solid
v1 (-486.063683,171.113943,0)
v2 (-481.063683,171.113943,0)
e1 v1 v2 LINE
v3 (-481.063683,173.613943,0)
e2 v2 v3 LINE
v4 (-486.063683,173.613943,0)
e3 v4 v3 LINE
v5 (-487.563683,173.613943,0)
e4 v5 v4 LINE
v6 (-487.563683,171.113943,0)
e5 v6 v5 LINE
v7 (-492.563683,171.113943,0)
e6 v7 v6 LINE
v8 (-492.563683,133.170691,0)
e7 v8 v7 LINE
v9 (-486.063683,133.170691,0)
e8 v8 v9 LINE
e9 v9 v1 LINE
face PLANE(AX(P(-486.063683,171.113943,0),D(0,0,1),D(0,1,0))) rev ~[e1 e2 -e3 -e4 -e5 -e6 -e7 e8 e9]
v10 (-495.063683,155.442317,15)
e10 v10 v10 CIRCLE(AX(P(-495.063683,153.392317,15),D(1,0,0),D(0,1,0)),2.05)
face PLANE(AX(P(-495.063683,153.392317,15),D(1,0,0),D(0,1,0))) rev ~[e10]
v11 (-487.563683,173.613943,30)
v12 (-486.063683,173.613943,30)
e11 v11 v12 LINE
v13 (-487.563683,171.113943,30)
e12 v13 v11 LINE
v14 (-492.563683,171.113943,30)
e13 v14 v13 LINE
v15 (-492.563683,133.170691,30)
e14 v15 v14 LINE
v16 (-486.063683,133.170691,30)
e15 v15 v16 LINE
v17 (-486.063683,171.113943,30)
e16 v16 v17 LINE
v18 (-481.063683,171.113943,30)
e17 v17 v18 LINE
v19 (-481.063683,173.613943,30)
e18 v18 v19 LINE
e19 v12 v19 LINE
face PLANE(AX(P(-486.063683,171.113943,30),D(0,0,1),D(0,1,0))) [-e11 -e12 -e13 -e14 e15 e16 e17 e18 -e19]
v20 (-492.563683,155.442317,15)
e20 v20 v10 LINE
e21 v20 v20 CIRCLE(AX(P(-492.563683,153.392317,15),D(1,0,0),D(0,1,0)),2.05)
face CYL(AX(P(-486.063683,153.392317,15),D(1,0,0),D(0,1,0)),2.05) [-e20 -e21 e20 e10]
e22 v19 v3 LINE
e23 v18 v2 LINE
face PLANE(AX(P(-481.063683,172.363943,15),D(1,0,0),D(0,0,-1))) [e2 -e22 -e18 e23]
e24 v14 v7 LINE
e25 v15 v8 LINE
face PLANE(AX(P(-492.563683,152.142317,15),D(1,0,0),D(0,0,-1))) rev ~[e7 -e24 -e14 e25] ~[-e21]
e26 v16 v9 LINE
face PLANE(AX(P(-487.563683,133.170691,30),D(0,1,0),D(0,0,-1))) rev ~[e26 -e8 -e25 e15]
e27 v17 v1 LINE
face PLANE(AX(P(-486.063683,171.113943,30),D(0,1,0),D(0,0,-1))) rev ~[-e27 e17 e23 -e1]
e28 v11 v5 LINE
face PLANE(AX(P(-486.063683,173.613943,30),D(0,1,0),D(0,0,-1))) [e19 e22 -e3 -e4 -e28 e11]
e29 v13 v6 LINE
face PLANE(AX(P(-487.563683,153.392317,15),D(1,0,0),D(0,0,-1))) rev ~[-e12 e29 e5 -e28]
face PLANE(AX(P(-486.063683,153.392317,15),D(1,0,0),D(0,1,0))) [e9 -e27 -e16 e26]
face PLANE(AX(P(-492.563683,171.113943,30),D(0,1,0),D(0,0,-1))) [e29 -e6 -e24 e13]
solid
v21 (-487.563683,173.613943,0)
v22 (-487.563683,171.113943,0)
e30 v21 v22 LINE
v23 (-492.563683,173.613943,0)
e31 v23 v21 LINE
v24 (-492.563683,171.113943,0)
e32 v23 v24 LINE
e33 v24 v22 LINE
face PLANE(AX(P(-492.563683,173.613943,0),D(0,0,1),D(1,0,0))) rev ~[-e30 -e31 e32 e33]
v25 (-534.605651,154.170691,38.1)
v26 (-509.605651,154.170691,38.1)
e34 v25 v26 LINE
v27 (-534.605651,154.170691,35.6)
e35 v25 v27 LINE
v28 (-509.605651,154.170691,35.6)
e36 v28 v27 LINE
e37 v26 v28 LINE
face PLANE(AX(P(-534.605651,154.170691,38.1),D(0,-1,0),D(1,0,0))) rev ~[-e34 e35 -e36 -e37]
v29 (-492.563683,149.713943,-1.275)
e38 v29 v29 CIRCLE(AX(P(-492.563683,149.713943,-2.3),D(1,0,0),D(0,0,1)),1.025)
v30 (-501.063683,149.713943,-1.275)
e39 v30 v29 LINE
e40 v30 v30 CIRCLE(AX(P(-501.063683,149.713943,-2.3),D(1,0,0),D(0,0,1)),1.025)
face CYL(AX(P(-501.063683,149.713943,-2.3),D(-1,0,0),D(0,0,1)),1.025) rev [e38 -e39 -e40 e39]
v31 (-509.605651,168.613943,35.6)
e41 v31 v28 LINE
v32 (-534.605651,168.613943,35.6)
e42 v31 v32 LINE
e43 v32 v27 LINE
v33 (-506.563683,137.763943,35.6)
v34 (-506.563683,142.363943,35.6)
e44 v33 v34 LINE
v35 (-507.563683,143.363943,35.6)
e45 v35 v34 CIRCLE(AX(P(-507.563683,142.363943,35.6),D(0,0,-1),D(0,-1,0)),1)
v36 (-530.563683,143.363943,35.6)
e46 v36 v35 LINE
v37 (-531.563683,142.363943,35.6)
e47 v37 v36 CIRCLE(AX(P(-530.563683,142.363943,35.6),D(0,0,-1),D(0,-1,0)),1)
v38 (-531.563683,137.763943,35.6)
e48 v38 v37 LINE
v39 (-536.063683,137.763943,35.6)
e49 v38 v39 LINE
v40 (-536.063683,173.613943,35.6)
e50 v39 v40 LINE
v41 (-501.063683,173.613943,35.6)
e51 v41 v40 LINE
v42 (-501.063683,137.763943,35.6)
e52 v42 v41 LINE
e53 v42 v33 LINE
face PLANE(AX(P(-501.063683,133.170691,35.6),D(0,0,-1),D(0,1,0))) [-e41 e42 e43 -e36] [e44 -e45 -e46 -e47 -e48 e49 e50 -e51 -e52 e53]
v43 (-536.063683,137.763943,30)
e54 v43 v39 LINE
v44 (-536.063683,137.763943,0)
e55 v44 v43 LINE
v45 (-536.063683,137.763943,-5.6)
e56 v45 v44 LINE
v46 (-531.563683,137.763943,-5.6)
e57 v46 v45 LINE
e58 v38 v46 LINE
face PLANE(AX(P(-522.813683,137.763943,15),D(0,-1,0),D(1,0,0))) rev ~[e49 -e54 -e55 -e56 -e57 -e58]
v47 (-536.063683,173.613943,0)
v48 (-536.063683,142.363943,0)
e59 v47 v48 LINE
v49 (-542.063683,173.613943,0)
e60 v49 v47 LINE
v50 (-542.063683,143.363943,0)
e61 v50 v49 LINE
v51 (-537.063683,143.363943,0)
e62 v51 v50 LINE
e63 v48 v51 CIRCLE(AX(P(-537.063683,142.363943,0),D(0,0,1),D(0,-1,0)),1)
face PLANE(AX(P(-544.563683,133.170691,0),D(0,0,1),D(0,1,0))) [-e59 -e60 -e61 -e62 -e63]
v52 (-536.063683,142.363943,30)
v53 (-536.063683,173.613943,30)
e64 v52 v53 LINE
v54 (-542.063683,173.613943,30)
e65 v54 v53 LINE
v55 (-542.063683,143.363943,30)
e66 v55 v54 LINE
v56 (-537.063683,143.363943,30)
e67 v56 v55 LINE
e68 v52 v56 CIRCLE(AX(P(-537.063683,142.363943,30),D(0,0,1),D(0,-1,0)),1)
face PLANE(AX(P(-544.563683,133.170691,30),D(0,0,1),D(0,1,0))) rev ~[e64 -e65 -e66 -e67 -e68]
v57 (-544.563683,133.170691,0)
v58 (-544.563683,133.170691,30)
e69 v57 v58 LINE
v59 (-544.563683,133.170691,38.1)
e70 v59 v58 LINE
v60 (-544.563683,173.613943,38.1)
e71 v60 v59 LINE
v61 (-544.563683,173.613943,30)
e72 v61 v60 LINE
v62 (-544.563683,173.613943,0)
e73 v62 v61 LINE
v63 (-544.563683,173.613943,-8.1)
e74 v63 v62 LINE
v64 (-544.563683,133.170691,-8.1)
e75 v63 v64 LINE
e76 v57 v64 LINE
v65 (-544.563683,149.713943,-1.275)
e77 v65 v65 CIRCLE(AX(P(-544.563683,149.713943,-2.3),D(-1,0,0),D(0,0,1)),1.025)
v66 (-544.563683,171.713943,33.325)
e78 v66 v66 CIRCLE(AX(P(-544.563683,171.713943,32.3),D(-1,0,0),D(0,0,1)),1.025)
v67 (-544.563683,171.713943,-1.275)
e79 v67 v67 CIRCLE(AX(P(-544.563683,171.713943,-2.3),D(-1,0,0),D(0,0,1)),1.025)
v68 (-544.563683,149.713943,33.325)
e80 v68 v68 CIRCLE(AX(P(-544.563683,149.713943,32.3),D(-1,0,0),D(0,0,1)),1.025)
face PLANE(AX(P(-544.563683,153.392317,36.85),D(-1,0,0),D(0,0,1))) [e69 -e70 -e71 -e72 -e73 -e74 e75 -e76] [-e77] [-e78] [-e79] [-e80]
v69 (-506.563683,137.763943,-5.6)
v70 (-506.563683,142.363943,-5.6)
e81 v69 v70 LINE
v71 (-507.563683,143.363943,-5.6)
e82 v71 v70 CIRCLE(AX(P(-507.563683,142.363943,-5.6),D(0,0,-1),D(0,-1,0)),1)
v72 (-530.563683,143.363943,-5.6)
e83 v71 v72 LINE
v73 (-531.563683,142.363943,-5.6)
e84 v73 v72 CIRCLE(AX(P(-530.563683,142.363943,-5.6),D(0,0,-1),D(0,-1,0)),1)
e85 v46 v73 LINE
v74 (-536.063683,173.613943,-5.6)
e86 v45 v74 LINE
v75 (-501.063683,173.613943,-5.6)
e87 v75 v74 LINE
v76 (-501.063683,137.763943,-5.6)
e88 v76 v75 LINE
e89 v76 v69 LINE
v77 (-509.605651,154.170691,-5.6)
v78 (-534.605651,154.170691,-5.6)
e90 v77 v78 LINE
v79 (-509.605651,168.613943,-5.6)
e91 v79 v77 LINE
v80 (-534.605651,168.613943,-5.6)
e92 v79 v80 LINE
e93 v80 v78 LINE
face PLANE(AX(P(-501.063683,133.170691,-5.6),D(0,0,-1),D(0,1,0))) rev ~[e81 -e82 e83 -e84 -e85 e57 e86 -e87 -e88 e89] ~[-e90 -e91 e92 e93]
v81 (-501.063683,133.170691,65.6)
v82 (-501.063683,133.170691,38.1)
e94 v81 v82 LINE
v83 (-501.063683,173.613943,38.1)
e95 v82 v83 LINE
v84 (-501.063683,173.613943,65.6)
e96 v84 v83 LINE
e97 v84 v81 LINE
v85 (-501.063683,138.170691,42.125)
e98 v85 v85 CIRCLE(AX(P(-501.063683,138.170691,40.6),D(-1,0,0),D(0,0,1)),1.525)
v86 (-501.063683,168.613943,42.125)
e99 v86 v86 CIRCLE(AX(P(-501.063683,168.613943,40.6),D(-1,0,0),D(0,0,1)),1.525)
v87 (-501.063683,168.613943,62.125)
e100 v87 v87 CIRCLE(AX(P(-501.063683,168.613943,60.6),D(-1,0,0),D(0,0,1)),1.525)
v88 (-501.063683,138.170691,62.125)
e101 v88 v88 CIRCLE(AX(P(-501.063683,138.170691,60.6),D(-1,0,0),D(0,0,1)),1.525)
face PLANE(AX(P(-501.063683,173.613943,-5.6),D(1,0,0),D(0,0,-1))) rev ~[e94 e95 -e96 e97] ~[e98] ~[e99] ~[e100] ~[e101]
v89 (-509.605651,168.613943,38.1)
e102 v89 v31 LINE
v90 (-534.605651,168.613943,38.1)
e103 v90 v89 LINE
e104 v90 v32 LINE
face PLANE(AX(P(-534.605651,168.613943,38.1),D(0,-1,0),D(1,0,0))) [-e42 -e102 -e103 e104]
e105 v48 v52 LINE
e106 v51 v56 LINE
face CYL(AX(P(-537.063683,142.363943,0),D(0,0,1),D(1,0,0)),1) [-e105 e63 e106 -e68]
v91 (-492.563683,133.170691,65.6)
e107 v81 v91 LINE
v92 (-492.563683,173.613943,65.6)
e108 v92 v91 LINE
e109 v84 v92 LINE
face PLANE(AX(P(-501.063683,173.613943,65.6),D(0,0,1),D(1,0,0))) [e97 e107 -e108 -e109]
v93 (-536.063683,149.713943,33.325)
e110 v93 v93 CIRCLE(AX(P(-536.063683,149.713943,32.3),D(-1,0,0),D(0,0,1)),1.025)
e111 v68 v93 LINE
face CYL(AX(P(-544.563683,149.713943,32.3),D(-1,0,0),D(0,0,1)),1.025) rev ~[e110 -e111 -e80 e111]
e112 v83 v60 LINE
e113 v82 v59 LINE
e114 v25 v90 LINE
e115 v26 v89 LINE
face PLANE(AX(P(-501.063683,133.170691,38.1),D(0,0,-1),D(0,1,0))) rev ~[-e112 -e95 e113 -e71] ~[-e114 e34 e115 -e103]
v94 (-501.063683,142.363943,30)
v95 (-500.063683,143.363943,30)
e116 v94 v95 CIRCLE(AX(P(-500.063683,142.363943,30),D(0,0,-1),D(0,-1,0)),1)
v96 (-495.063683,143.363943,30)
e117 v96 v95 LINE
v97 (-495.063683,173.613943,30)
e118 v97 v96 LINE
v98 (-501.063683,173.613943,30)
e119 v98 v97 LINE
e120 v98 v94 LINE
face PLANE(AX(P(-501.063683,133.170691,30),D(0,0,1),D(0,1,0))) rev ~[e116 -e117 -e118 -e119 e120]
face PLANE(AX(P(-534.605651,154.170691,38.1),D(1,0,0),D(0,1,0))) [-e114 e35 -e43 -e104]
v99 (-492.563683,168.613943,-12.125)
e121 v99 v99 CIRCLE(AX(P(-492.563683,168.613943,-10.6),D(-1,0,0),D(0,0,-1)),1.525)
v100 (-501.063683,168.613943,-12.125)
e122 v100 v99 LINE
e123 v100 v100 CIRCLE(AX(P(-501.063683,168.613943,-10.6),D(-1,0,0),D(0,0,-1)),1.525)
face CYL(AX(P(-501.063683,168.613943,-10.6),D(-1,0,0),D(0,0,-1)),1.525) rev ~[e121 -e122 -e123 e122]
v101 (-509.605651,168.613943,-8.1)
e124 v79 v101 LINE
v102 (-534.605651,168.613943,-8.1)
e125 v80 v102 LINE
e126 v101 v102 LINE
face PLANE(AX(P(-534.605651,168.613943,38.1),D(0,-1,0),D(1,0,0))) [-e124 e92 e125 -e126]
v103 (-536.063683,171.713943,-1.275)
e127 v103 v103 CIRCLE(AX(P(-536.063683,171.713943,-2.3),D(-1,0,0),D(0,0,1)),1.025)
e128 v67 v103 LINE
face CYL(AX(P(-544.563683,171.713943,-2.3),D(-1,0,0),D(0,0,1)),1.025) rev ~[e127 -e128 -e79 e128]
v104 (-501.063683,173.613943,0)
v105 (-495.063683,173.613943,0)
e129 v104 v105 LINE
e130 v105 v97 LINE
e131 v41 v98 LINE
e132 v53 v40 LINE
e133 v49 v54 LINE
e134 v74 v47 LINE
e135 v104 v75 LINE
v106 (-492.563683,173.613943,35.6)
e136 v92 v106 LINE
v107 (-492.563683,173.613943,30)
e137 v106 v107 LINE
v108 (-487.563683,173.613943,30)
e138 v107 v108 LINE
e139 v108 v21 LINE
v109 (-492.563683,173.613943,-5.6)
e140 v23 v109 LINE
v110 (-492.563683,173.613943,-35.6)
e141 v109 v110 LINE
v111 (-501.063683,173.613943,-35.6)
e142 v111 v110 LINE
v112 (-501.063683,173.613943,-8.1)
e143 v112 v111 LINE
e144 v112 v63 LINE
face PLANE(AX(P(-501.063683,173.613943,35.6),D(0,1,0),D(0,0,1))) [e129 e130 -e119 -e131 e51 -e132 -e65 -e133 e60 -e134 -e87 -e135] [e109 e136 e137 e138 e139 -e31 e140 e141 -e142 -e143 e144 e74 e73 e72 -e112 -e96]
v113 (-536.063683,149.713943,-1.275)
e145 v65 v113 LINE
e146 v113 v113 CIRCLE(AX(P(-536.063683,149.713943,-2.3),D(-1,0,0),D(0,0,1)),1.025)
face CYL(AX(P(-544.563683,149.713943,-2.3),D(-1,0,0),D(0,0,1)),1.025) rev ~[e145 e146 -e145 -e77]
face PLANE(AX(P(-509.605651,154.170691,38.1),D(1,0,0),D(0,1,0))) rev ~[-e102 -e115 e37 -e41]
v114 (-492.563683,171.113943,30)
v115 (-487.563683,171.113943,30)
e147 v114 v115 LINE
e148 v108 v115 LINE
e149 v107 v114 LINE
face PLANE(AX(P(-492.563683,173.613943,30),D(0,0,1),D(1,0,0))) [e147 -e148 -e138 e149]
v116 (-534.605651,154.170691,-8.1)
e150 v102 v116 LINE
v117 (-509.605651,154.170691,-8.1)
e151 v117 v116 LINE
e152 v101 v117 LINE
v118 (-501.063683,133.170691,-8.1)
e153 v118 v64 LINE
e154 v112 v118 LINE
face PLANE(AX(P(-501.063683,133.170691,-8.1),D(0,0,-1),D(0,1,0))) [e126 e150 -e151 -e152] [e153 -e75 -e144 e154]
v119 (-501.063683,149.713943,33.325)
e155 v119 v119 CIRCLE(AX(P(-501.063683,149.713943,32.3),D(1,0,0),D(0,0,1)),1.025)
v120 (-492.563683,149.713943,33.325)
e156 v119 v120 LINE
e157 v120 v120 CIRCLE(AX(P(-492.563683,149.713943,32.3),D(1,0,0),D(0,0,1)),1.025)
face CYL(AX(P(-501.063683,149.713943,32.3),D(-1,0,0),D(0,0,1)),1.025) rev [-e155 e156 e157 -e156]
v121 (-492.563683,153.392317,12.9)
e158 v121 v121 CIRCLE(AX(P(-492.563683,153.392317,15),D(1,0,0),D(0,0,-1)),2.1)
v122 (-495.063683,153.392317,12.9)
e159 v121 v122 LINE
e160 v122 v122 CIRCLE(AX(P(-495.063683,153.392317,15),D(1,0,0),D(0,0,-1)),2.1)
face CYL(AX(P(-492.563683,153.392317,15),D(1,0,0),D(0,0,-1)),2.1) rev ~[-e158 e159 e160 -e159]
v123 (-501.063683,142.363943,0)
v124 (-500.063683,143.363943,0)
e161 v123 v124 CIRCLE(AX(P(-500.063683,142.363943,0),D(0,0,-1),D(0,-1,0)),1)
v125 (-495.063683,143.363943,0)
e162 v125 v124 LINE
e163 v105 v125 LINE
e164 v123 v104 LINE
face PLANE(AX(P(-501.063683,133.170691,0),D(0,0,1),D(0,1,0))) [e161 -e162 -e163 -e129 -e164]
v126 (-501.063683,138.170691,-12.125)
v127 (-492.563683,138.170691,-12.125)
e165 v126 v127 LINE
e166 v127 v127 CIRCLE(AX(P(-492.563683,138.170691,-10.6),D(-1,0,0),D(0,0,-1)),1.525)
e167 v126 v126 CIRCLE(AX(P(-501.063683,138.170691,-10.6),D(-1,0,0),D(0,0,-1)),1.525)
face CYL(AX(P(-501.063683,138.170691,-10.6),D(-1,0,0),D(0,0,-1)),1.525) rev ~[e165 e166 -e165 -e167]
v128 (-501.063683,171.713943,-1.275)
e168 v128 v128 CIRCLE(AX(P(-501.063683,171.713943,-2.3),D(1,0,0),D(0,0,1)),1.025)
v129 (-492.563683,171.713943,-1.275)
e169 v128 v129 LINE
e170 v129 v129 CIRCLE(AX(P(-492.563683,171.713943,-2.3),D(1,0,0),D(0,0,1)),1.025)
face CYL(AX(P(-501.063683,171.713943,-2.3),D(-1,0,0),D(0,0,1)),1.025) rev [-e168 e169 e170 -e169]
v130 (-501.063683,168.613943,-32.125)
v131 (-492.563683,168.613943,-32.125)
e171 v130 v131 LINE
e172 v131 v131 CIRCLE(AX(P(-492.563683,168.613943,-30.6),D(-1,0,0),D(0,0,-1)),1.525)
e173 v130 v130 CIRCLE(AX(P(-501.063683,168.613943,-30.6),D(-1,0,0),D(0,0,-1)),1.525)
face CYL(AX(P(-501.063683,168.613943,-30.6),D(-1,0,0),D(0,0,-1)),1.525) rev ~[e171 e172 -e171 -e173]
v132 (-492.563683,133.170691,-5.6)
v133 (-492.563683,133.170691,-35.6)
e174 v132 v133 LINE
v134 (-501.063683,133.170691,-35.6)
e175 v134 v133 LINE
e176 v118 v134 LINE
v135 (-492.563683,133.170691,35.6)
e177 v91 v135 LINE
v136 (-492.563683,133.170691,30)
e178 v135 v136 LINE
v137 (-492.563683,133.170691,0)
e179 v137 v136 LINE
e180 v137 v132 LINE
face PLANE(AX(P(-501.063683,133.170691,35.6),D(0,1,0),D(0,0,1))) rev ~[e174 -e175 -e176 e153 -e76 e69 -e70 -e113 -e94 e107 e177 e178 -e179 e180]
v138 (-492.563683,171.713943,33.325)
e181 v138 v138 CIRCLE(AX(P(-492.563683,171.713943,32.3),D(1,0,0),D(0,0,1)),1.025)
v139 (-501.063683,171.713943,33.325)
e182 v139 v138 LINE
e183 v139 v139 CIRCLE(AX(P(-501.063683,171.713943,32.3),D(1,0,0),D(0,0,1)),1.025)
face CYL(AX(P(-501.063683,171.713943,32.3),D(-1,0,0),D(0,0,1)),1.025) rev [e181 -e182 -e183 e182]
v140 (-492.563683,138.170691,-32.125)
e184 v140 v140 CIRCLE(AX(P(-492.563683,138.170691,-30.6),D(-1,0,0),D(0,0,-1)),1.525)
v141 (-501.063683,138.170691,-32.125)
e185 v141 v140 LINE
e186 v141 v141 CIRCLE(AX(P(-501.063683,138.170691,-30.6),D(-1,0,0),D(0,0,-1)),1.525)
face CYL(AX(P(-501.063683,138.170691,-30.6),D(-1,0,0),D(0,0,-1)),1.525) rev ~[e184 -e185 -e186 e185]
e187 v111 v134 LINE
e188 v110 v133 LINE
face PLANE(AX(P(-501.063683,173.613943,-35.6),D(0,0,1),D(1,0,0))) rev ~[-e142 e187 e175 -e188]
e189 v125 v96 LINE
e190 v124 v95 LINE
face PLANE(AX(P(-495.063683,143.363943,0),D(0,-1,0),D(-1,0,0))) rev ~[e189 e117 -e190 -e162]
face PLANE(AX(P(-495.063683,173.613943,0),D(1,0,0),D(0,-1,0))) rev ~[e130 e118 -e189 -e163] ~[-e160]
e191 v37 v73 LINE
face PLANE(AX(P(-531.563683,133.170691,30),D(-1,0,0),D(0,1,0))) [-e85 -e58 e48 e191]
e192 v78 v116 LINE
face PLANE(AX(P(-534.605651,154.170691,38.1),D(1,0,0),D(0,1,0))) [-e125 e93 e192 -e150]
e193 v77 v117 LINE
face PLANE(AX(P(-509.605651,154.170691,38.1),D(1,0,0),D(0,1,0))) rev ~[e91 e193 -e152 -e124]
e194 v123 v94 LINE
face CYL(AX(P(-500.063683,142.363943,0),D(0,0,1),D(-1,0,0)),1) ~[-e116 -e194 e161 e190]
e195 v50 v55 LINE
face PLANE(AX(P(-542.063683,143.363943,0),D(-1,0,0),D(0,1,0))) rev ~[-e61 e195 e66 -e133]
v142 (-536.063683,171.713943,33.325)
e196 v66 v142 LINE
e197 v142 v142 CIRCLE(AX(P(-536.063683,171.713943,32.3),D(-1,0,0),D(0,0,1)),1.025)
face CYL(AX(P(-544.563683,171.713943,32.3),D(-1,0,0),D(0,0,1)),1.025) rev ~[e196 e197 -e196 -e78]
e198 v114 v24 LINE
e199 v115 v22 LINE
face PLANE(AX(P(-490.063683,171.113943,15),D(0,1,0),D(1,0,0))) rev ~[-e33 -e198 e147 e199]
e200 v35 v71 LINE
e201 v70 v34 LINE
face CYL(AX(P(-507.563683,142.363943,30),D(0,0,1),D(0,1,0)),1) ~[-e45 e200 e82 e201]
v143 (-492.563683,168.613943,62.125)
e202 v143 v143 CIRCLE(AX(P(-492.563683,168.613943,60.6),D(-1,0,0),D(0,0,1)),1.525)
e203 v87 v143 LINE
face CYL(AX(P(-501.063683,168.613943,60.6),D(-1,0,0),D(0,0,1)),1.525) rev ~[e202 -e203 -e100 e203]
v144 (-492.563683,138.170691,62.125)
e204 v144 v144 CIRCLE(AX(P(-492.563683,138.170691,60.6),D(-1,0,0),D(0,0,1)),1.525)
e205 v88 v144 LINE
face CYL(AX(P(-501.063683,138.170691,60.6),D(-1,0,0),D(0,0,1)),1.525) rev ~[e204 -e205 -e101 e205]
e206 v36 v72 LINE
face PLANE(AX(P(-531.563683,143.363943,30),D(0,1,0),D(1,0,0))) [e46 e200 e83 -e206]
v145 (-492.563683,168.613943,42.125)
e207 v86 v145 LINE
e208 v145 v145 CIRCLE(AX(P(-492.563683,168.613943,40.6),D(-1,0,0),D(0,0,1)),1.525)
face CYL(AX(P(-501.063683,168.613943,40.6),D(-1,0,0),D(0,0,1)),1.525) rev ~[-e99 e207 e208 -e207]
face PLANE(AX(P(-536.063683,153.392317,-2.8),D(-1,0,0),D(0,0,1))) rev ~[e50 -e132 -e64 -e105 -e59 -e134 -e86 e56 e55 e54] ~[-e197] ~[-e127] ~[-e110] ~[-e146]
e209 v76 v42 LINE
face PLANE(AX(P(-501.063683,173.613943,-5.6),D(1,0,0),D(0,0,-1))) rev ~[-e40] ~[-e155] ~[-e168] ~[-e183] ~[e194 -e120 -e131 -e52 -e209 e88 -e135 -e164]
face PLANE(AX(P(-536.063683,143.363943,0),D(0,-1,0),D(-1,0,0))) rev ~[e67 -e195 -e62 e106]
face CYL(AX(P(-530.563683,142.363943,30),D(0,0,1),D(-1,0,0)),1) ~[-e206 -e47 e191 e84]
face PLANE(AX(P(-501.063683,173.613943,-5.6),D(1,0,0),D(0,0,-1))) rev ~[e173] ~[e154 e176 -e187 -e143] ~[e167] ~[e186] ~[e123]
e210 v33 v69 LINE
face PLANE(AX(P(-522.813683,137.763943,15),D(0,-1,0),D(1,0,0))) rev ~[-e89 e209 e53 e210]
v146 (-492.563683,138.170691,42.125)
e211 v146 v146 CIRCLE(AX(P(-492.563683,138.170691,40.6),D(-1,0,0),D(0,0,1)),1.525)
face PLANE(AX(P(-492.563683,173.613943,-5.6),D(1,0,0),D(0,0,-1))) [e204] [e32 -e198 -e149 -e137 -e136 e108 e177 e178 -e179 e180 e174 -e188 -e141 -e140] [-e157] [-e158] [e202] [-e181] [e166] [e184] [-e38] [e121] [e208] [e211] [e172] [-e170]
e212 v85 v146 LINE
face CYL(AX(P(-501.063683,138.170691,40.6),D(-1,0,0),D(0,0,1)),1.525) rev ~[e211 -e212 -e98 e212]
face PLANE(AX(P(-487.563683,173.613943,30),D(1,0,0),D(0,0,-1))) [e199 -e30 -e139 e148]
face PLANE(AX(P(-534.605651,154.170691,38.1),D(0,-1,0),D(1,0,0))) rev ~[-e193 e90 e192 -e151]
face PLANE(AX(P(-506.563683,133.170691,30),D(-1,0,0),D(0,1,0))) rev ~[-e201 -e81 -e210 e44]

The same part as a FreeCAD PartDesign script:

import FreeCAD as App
import Part
import Sketcher


def edges_at(feature, points):
    """Names of the edges that pass closest to the given points."""
    edges = feature.Shape.Edges
    near = lambda p: min(range(len(edges)), key=lambda i: edges[i].distToShape(Part.Vertex(*p))[0])
    return sorted({f"Edge{near(p) + 1}" for p in points})


def add_polygon(sketch, points):
    """Adds a closed chain of lines whose ends are joined by coincident constraints."""
    first, n = sketch.GeometryCount, len(points)
    for a, b in zip(points, points[1:] + points[:1]):
        sketch.addGeometry(Part.LineSegment(App.Vector(*a, 0), App.Vector(*b, 0)), False)
    for i in range(n):
        sketch.addConstraint(Sketcher.Constraint("Coincident", first + i, 2, first + (i + 1) % n, 1))

doc = App.newDocument("Part")
body = doc.addObject("PartDesign::Body", "Body")

# Sketch on XY plane
sketch1 = body.newObject("Sketcher::SketchObject", "Sketch")
sketch1.AttachmentSupport = (doc.getObject("XY_Plane"), [""])
sketch1.MapMode = "FlatFace"
add_polygon(sketch1, [(-492.6, 133.2), (-492.6, 173.6), (-495.1, 173.6), (-495.1, 143.4), (-501.1, 143.4), (-501.1, 137.8), (-506.6, 137.8), (-506.6, 143.4), (-531.6, 143.4), (-531.6, 137.8), (-536.1, 137.8), (-536.1, 143.4), (-542.1, 143.4), (-542.1, 173.6), (-544.6, 173.6), (-544.6, 133.2)])  # lines 0-15
sketch1.addConstraint(Sketcher.Constraint("Vertical", 0))
sketch1.addConstraint(Sketcher.Constraint("Horizontal", 1))
sketch1.addConstraint(Sketcher.Constraint("Vertical", 2))
sketch1.addConstraint(Sketcher.Constraint("Horizontal", 3))
sketch1.addConstraint(Sketcher.Constraint("Vertical", 4))
sketch1.addConstraint(Sketcher.Constraint("Horizontal", 5))
sketch1.addConstraint(Sketcher.Constraint("Vertical", 6))
sketch1.addConstraint(Sketcher.Constraint("Horizontal", 7))
sketch1.addConstraint(Sketcher.Constraint("Vertical", 8))
sketch1.addConstraint(Sketcher.Constraint("Horizontal", 9))
sketch1.addConstraint(Sketcher.Constraint("Vertical", 10))
sketch1.addConstraint(Sketcher.Constraint("Horizontal", 11))
sketch1.addConstraint(Sketcher.Constraint("Vertical", 12))
sketch1.addConstraint(Sketcher.Constraint("Horizontal", 13))
sketch1.addConstraint(Sketcher.Constraint("Vertical", 14))
sketch1.addConstraint(Sketcher.Constraint("Horizontal", 15))
sketch1.addConstraint(Sketcher.Constraint("Horizontal", 3, 2, 6, 2))
sketch1.addConstraint(Sketcher.Constraint("Horizontal", 5, 2, 8, 2))
sketch1.addConstraint(Sketcher.Constraint("Horizontal", 7, 2, 10, 2))
sketch1.addConstraint(Sketcher.Constraint("Horizontal", 1, 2, 12, 2))
sketch1.addConstraint(Sketcher.Constraint("Equal", 3, 11))
sketch1.addConstraint(Sketcher.Constraint("Equal", 1, 13))
sketch1.addConstraint(Sketcher.Constraint("DistanceX", 3, 2, 3, 1, 6.0))
sketch1.addConstraint(Sketcher.Constraint("DistanceX", 7, 2, 7, 1, 25.0))
sketch1.addConstraint(Sketcher.Constraint("DistanceX", 15, 1, 15, 2, 52.0))
sketch1.addConstraint(Sketcher.Constraint("DistanceX", 1, 2, 1, 1, 2.5))
sketch1.addConstraint(Sketcher.Constraint("DistanceX", 5, 2, 5, 1, 5.5))
sketch1.addConstraint(Sketcher.Constraint("DistanceY", 4, 2, 4, 1, 5.6))
sketch1.addConstraint(Sketcher.Constraint("DistanceY", 2, 2, 2, 1, 30.25))
sketch1.addConstraint(Sketcher.Constraint("DistanceY", 0, 1, 0, 2, 40.443252))
sketch1.addConstraint(Sketcher.Constraint("DistanceY", -1, 1, 14, 2, 133.170691))
sketch1.addConstraint(Sketcher.Constraint("DistanceX", 0, 2, -1, 1, 492.563683))
pad1 = body.newObject("PartDesign::Pad", "Pad")
pad1.Profile = sketch1
pad1.Length = 30

# Sketch on YZ plane
sketch2 = body.newObject("Sketcher::SketchObject", "Sketch001")
sketch2.AttachmentSupport = (doc.getObject("YZ_Plane"), [""])
sketch2.MapMode = "FlatFace"
sketch2.AttachmentOffset = App.Placement(App.Vector(0, 0, -544.563683), App.Rotation())
add_polygon(sketch2, [(173.6, -5.6), (133.2, -5.6), (133.2, 0), (173.6, 0)])  # lines 0-3
sketch2.addGeometry(Part.Circle(App.Vector(149.7, -2.3, 0), App.Vector(0, 0, 1), 1), False)  # 4
sketch2.addGeometry(Part.Circle(App.Vector(171.7, -2.3, 0), App.Vector(0, 0, 1), 1), False)  # 5
add_polygon(sketch2, [(173.6, 30), (133.2, 30), (133.2, 35.6), (173.6, 35.6)])  # lines 6-9
sketch2.addGeometry(Part.Circle(App.Vector(149.7, 32.3, 0), App.Vector(0, 0, 1), 1), False)  # 10
sketch2.addGeometry(Part.Circle(App.Vector(171.7, 32.3, 0), App.Vector(0, 0, 1), 1), False)  # 11
sketch2.addConstraint(Sketcher.Constraint("Horizontal", 0))
sketch2.addConstraint(Sketcher.Constraint("Vertical", 1))
sketch2.addConstraint(Sketcher.Constraint("Horizontal", 2))
sketch2.addConstraint(Sketcher.Constraint("Vertical", 3))
sketch2.addConstraint(Sketcher.Constraint("Horizontal", 6))
sketch2.addConstraint(Sketcher.Constraint("Vertical", 7))
sketch2.addConstraint(Sketcher.Constraint("Horizontal", 8))
sketch2.addConstraint(Sketcher.Constraint("Vertical", 9))
sketch2.addConstraint(Sketcher.Constraint("Equal", 4, 5))
sketch2.addConstraint(Sketcher.Constraint("Equal", 5, 10))
sketch2.addConstraint(Sketcher.Constraint("Equal", 10, 11))
sketch2.addConstraint(Sketcher.Constraint("PointOnObject", 1, 2, -1))
sketch2.addConstraint(Sketcher.Constraint("Horizontal", 4, 3, 5, 3))
sketch2.addConstraint(Sketcher.Constraint("Horizontal", 10, 3, 11, 3))
sketch2.addConstraint(Sketcher.Constraint("Vertical", 4, 3, 10, 3))
sketch2.addConstraint(Sketcher.Constraint("Vertical", 5, 3, 11, 3))
sketch2.addConstraint(Sketcher.Constraint("Vertical", 1, 2, 6, 2))
sketch2.addConstraint(Sketcher.Constraint("Vertical", 3, 2, 8, 2))
sketch2.addConstraint(Sketcher.Constraint("Equal", 3, 7))
sketch2.addConstraint(Sketcher.Constraint("Diameter", 4, 2.05))
sketch2.addConstraint(Sketcher.Constraint("DistanceY", 1, 1, 1, 2, 5.6))
sketch2.addConstraint(Sketcher.Constraint("DistanceY", -1, 1, 6, 2, 30.0))
sketch2.addConstraint(Sketcher.Constraint("DistanceX", 4, 3, 5, 3, 22.0))
sketch2.addConstraint(Sketcher.Constraint("DistanceY", 4, 3, -1, 1, 2.3))
sketch2.addConstraint(Sketcher.Constraint("DistanceY", -1, 1, 10, 3, 32.3))
sketch2.addConstraint(Sketcher.Constraint("DistanceX", 5, 3, 2, 2, 1.9))
sketch2.addConstraint(Sketcher.Constraint("DistanceX", 0, 2, 0, 1, 40.443252))
sketch2.addConstraint(Sketcher.Constraint("DistanceX", -1, 1, 0, 2, 133.170691))
pad2 = body.newObject("PartDesign::Pad", "Pad001")
pad2.Profile = sketch2
pad2.Length = 8.5

# Sketch on XY plane
sketch3 = body.newObject("Sketcher::SketchObject", "Sketch002")
sketch3.AttachmentSupport = (doc.getObject("XY_Plane"), [""])
sketch3.MapMode = "FlatFace"
add_polygon(sketch3, [(-507, 143), (-507, 133), (-532, 133), (-532, 143)])  # lines 0-3
sketch3.addConstraint(Sketcher.Constraint("Vertical", 0))
sketch3.addConstraint(Sketcher.Constraint("Horizontal", 1))
sketch3.addConstraint(Sketcher.Constraint("Vertical", 2))
sketch3.addConstraint(Sketcher.Constraint("Horizontal", 3))
sketch3.addConstraint(Sketcher.Constraint("DistanceX", 1, 2, 1, 1, 25.0))
sketch3.addConstraint(Sketcher.Constraint("DistanceY", 0, 2, 0, 1, 10.193252))
sketch3.addConstraint(Sketcher.Constraint("DistanceY", -1, 1, 0, 2, 133.170691))
sketch3.addConstraint(Sketcher.Constraint("DistanceX", 0, 2, -1, 1, 506.563683))
pad3 = body.newObject("PartDesign::Pad", "Pad002")
pad3.Profile = sketch3
pad3.Length = 5.6
pad3.Reversed = True

# Sketch on XY plane
sketch4 = body.newObject("Sketcher::SketchObject", "Sketch003")
sketch4.AttachmentSupport = (doc.getObject("XY_Plane"), [""])
sketch4.MapMode = "FlatFace"
sketch4.AttachmentOffset = App.Placement(App.Vector(0, 0, 30), App.Rotation())
add_polygon(sketch4, [(-532, 143), (-532, 133), (-507, 133), (-507, 143)])  # lines 0-3
sketch4.addConstraint(Sketcher.Constraint("Vertical", 0))
sketch4.addConstraint(Sketcher.Constraint("Horizontal", 1))
sketch4.addConstraint(Sketcher.Constraint("Vertical", 2))
sketch4.addConstraint(Sketcher.Constraint("Horizontal", 3))
sketch4.addConstraint(Sketcher.Constraint("DistanceX", 1, 1, 1, 2, 25.0))
sketch4.addConstraint(Sketcher.Constraint("DistanceY", 0, 2, 0, 1, 10.193252))
sketch4.addConstraint(Sketcher.Constraint("DistanceY", -1, 1, 0, 2, 133.170691))
sketch4.addConstraint(Sketcher.Constraint("DistanceX", 0, 2, -1, 1, 531.563683))
pad4 = body.newObject("PartDesign::Pad", "Pad003")
pad4.Profile = sketch4
pad4.Length = 5.6
doc.recompute()

fillet = body.newObject("PartDesign::Fillet", "Fillet")
fillet.Base = (pad4, edges_at(pad4, [(-531.564, 143.364, 15), (-506.564, 143.364, 15)]))
fillet.Radius = 1

# Sketch on YZ plane
sketch5 = body.newObject("Sketcher::SketchObject", "Sketch004")
sketch5.AttachmentSupport = (doc.getObject("YZ_Plane"), [""])
sketch5.MapMode = "FlatFace"
sketch5.AttachmentOffset = App.Placement(App.Vector(0, 0, -501.063683), App.Rotation())
add_polygon(sketch5, [(173.6, 35.6), (133.2, 35.6), (133.2, 30), (173.6, 30)])  # lines 0-3
sketch5.addGeometry(Part.Circle(App.Vector(149.7, 32.3, 0), App.Vector(0, 0, 1), 1), False)  # 4
sketch5.addGeometry(Part.Circle(App.Vector(171.7, 32.3, 0), App.Vector(0, 0, 1), 1), False)  # 5
add_polygon(sketch5, [(173.6, 0), (133.2, 0), (133.2, -5.6), (173.6, -5.6)])  # lines 6-9
sketch5.addGeometry(Part.Circle(App.Vector(149.7, -2.3, 0), App.Vector(0, 0, 1), 1), False)  # 10
sketch5.addGeometry(Part.Circle(App.Vector(171.7, -2.3, 0), App.Vector(0, 0, 1), 1), False)  # 11
sketch5.addConstraint(Sketcher.Constraint("Horizontal", 0))
sketch5.addConstraint(Sketcher.Constraint("Vertical", 1))
sketch5.addConstraint(Sketcher.Constraint("Horizontal", 2))
sketch5.addConstraint(Sketcher.Constraint("Vertical", 3))
sketch5.addConstraint(Sketcher.Constraint("Horizontal", 6))
sketch5.addConstraint(Sketcher.Constraint("Vertical", 7))
sketch5.addConstraint(Sketcher.Constraint("Horizontal", 8))
sketch5.addConstraint(Sketcher.Constraint("Vertical", 9))
sketch5.addConstraint(Sketcher.Constraint("Equal", 4, 5))
sketch5.addConstraint(Sketcher.Constraint("Equal", 5, 10))
sketch5.addConstraint(Sketcher.Constraint("Equal", 10, 11))
sketch5.addConstraint(Sketcher.Constraint("PointOnObject", 6, 2, -1))
sketch5.addConstraint(Sketcher.Constraint("Horizontal", 4, 3, 5, 3))
sketch5.addConstraint(Sketcher.Constraint("Horizontal", 10, 3, 11, 3))
sketch5.addConstraint(Sketcher.Constraint("Vertical", 4, 3, 10, 3))
sketch5.addConstraint(Sketcher.Constraint("Vertical", 5, 3, 11, 3))
sketch5.addConstraint(Sketcher.Constraint("Vertical", 1, 2, 6, 2))
sketch5.addConstraint(Sketcher.Constraint("Vertical", 3, 2, 8, 2))
sketch5.addConstraint(Sketcher.Constraint("Equal", 3, 7))
sketch5.addConstraint(Sketcher.Constraint("Diameter", 4, 2.05))
sketch5.addConstraint(Sketcher.Constraint("DistanceY", 1, 2, 1, 1, 5.6))
sketch5.addConstraint(Sketcher.Constraint("DistanceY", -1, 1, 1, 2, 30.0))
sketch5.addConstraint(Sketcher.Constraint("DistanceX", 4, 3, 5, 3, 22.0))
sketch5.addConstraint(Sketcher.Constraint("DistanceY", -1, 1, 4, 3, 32.3))
sketch5.addConstraint(Sketcher.Constraint("DistanceY", 10, 3, -1, 1, 2.3))
sketch5.addConstraint(Sketcher.Constraint("DistanceX", 5, 3, 2, 2, 1.9))
sketch5.addConstraint(Sketcher.Constraint("DistanceX", 0, 2, 0, 1, 40.443252))
sketch5.addConstraint(Sketcher.Constraint("DistanceX", -1, 1, 0, 2, 133.170691))
pad5 = body.newObject("PartDesign::Pad", "Pad004")
pad5.Profile = sketch5
pad5.Length = 8.5
doc.recompute()

fillet2 = body.newObject("PartDesign::Fillet", "Fillet001")
fillet2.Base = (pad5, edges_at(pad5, [(-536.064, 143.364, 15), (-501.064, 143.364, 15)]))
fillet2.Radius = 1

# Sketch on YZ plane
sketch6 = body.newObject("Sketcher::SketchObject", "Sketch005")
sketch6.AttachmentSupport = (doc.getObject("YZ_Plane"), [""])
sketch6.MapMode = "FlatFace"
sketch6.AttachmentOffset = App.Placement(App.Vector(0, 0, -492.563683), App.Rotation())
sketch6.addGeometry(Part.Circle(App.Vector(153.4, 15, 0), App.Vector(0, 0, 1), 2.1), False)
sketch6.addConstraint(Sketcher.Constraint("Diameter", 0, 4.2))
sketch6.addConstraint(Sketcher.Constraint("DistanceY", -1, 1, 0, 3, 15.0))
sketch6.addConstraint(Sketcher.Constraint("DistanceX", -1, 1, 0, 3, 153.392317))
pocket1 = body.newObject("PartDesign::Pocket", "Pocket")
pocket1.Profile = sketch6
pocket1.Length = 8.5

# Sketch on XZ plane
sketch7 = body.newObject("Sketcher::SketchObject", "Sketch006")
sketch7.AttachmentSupport = (doc.getObject("XZ_Plane"), [""])
sketch7.MapMode = "FlatFace"
sketch7.AttachmentOffset = App.Placement(App.Vector(0, 0, -173.613943), App.Rotation())
add_polygon(sketch7, [(-501, -36), (-501, -6), (-493, -6), (-493, -36)])  # lines 0-3
add_polygon(sketch7, [(-501, 36), (-501, 66), (-493, 66), (-493, 36)])  # lines 4-7
sketch7.addConstraint(Sketcher.Constraint("Vertical", 0))
sketch7.addConstraint(Sketcher.Constraint("Horizontal", 1))
sketch7.addConstraint(Sketcher.Constraint("Vertical", 2))
sketch7.addConstraint(Sketcher.Constraint("Horizontal", 3))
sketch7.addConstraint(Sketcher.Constraint("Vertical", 4))
sketch7.addConstraint(Sketcher.Constraint("Horizontal", 5))
sketch7.addConstraint(Sketcher.Constraint("Vertical", 6))
sketch7.addConstraint(Sketcher.Constraint("Horizontal", 7))
sketch7.addConstraint(Sketcher.Constraint("Symmetric", 2, 2, 6, 2, -1))
sketch7.addConstraint(Sketcher.Constraint("Vertical", 3, 2, 4, 2))
sketch7.addConstraint(Sketcher.Constraint("Equal", 2, 4))
sketch7.addConstraint(Sketcher.Constraint("DistanceY", 0, 1, 0, 2, 30.0))
sketch7.addConstraint(Sketcher.Constraint("DistanceX", 1, 1, 1, 2, 8.5))
sketch7.addConstraint(Sketcher.Constraint("DistanceY", 0, 2, -1, 1, 5.6))
sketch7.addConstraint(Sketcher.Constraint("DistanceX", 0, 2, -1, 1, 501.063683))
pad6 = body.newObject("PartDesign::Pad", "Pad005")
pad6.Profile = sketch7
pad6.Length = 40.443252

# Sketch on YZ plane
sketch8 = body.newObject("Sketcher::SketchObject", "Sketch007")
sketch8.AttachmentSupport = (doc.getObject("YZ_Plane"), [""])
sketch8.MapMode = "FlatFace"
sketch8.AttachmentOffset = App.Placement(App.Vector(0, 0, -501.063683), App.Rotation())
sketch8.addGeometry(Part.Circle(App.Vector(168.6, 40.6, 0), App.Vector(0, 0, 1), 1.5), False)
sketch8.addGeometry(Part.Circle(App.Vector(168.6, 60.6, 0), App.Vector(0, 0, 1), 1.5), False)
sketch8.addGeometry(Part.Circle(App.Vector(138.2, 60.6, 0), App.Vector(0, 0, 1), 1.5), False)
sketch8.addGeometry(Part.Circle(App.Vector(138.2, 40.6, 0), App.Vector(0, 0, 1), 1.5), False)
sketch8.addGeometry(Part.Circle(App.Vector(168.6, -30.6, 0), App.Vector(0, 0, 1), 1.5), False)
sketch8.addGeometry(Part.Circle(App.Vector(138.2, -30.6, 0), App.Vector(0, 0, 1), 1.5), False)
sketch8.addGeometry(Part.Circle(App.Vector(138.2, -10.6, 0), App.Vector(0, 0, 1), 1.5), False)
sketch8.addGeometry(Part.Circle(App.Vector(168.6, -10.6, 0), App.Vector(0, 0, 1), 1.5), False)
sketch8.addConstraint(Sketcher.Constraint("Equal", 0, 1))
sketch8.addConstraint(Sketcher.Constraint("Equal", 1, 2))
sketch8.addConstraint(Sketcher.Constraint("Equal", 2, 3))
sketch8.addConstraint(Sketcher.Constraint("Equal", 3, 4))
sketch8.addConstraint(Sketcher.Constraint("Equal", 4, 5))
sketch8.addConstraint(Sketcher.Constraint("Equal", 5, 6))
sketch8.addConstraint(Sketcher.Constraint("Equal", 6, 7))
sketch8.addConstraint(Sketcher.Constraint("Horizontal", 1, 3, 2, 3))
sketch8.addConstraint(Sketcher.Constraint("Horizontal", 0, 3, 3, 3))
sketch8.addConstraint(Sketcher.Constraint("Horizontal", 4, 3, 5, 3))
sketch8.addConstraint(Sketcher.Constraint("Horizontal", 6, 3, 7, 3))
sketch8.addConstraint(Sketcher.Constraint("Vertical", 0, 3, 1, 3))
sketch8.addConstraint(Sketcher.Constraint("Vertical", 2, 3, 3, 3))
sketch8.addConstraint(Sketcher.Constraint("Vertical", 1, 3, 4, 3))
sketch8.addConstraint(Sketcher.Constraint("Vertical", 3, 3, 5, 3))
sketch8.addConstraint(Sketcher.Constraint("Vertical", 5, 3, 6, 3))
sketch8.addConstraint(Sketcher.Constraint("Vertical", 4, 3, 7, 3))
sketch8.addConstraint(Sketcher.Constraint("Diameter", 0, 3.05))
sketch8.addConstraint(Sketcher.Constraint("DistanceY", 0, 3, 1, 3, 20.0))
sketch8.addConstraint(Sketcher.Constraint("DistanceY", 5, 3, 6, 3, 20.0))
sketch8.addConstraint(Sketcher.Constraint("DistanceY", -1, 1, 0, 3, 40.6))
sketch8.addConstraint(Sketcher.Constraint("DistanceY", 4, 3, -1, 1, 30.6))
sketch8.addConstraint(Sketcher.Constraint("DistanceX", -1, 1, 2, 3, 138.170691))
sketch8.addConstraint(Sketcher.Constraint("DistanceX", -1, 1, 0, 3, 168.613943))
pocket2 = body.newObject("PartDesign::Pocket", "Pocket001")
pocket2.Profile = sketch8
pocket2.Type = "ThroughAll"
pocket2.Reversed = True

# Sketch on XZ plane
sketch9 = body.newObject("Sketcher::SketchObject", "Sketch008")
sketch9.AttachmentSupport = (doc.getObject("XZ_Plane"), [""])
sketch9.MapMode = "FlatFace"
sketch9.AttachmentOffset = App.Placement(App.Vector(0, 0, -173.613943), App.Rotation())
add_polygon(sketch9, [(-493, 0), (-493, 30), (-488, 30), (-488, 0)])  # lines 0-3
sketch9.addConstraint(Sketcher.Constraint("Vertical", 0))
sketch9.addConstraint(Sketcher.Constraint("Horizontal", 1))
sketch9.addConstraint(Sketcher.Constraint("Vertical", 2))
sketch9.addConstraint(Sketcher.Constraint("Horizontal", 3))
sketch9.addConstraint(Sketcher.Constraint("PointOnObject", 2, 2, -1))
sketch9.addConstraint(Sketcher.Constraint("DistanceX", 1, 1, 1, 2, 5.0))
sketch9.addConstraint(Sketcher.Constraint("DistanceY", 0, 1, 0, 2, 30.0))
sketch9.addConstraint(Sketcher.Constraint("DistanceX", 0, 2, -1, 1, 492.563683))
pad7 = body.newObject("PartDesign::Pad", "Pad006")
pad7.Profile = sketch9
pad7.Length = 2.5

# Sketch on YZ plane
sketch10 = body.newObject("Sketcher::SketchObject", "Sketch009")
sketch10.AttachmentSupport = (doc.getObject("YZ_Plane"), [""])
sketch10.MapMode = "FlatFace"
sketch10.AttachmentOffset = App.Placement(App.Vector(0, 0, -501.063683), App.Rotation())
add_polygon(sketch10, [(173.6, 35.6), (133.2, 35.6), (133.2, 38.1), (173.6, 38.1)])  # lines 0-3
add_polygon(sketch10, [(173.6, -8.1), (133.2, -8.1), (133.2, -5.6), (173.6, -5.6)])  # lines 4-7
sketch10.addConstraint(Sketcher.Constraint("Horizontal", 0))
sketch10.addConstraint(Sketcher.Constraint("Vertical", 1))
sketch10.addConstraint(Sketcher.Constraint("Horizontal", 2))
sketch10.addConstraint(Sketcher.Constraint("Vertical", 3))
sketch10.addConstraint(Sketcher.Constraint("Horizontal", 4))
sketch10.addConstraint(Sketcher.Constraint("Vertical", 5))
sketch10.addConstraint(Sketcher.Constraint("Horizontal", 6))
sketch10.addConstraint(Sketcher.Constraint("Vertical", 7))
sketch10.addConstraint(Sketcher.Constraint("Vertical", 1, 2, 4, 2))
sketch10.addConstraint(Sketcher.Constraint("Vertical", 3, 2, 6, 2))
sketch10.addConstraint(Sketcher.Constraint("Equal", 3, 5))
sketch10.addConstraint(Sketcher.Constraint("DistanceY", 1, 1, 1, 2, 2.5))
sketch10.addConstraint(Sketcher.Constraint("DistanceY", -1, 1, 0, 2, 35.6))
sketch10.addConstraint(Sketcher.Constraint("DistanceY", 4, 2, -1, 1, 8.1))
sketch10.addConstraint(Sketcher.Constraint("DistanceX", 0, 2, 0, 1, 40.443252))
sketch10.addConstraint(Sketcher.Constraint("DistanceX", -1, 1, 0, 2, 133.170691))
pad8 = body.newObject("PartDesign::Pad", "Pad007")
pad8.Profile = sketch10
pad8.Length = 43.5
pad8.Reversed = True

# Sketch on XY plane
sketch11 = body.newObject("Sketcher::SketchObject", "Sketch010")
sketch11.AttachmentSupport = (doc.getObject("XY_Plane"), [""])
sketch11.MapMode = "FlatFace"
sketch11.AttachmentOffset = App.Placement(App.Vector(0, 0, 38.1), App.Rotation())
add_polygon(sketch11, [(-535, 169), (-535, 154), (-510, 154), (-510, 169)])  # lines 0-3
sketch11.addConstraint(Sketcher.Constraint("Vertical", 0))
sketch11.addConstraint(Sketcher.Constraint("Horizontal", 1))
sketch11.addConstraint(Sketcher.Constraint("Vertical", 2))
sketch11.addConstraint(Sketcher.Constraint("Horizontal", 3))
sketch11.addConstraint(Sketcher.Constraint("DistanceX", 1, 1, 1, 2, 25.0))
sketch11.addConstraint(Sketcher.Constraint("DistanceY", 0, 2, 0, 1, 14.443252))
sketch11.addConstraint(Sketcher.Constraint("DistanceX", 0, 2, -1, 1, 534.605651))
sketch11.addConstraint(Sketcher.Constraint("DistanceY", -1, 1, 0, 2, 154.170691))
pocket3 = body.newObject("PartDesign::Pocket", "Pocket002")
pocket3.Profile = sketch11
pocket3.Length = 60

# Sketch on XZ plane
sketch12 = body.newObject("Sketcher::SketchObject", "Sketch011")
sketch12.AttachmentSupport = (doc.getObject("XZ_Plane"), [""])
sketch12.MapMode = "FlatFace"
sketch12.AttachmentOffset = App.Placement(App.Vector(0, 0, -133.170691), App.Rotation())
add_polygon(sketch12, [(-545, 38), (-545, -8), (-501, -8), (-501, 38)])  # lines 0-3
sketch12.addConstraint(Sketcher.Constraint("Vertical", 0))
sketch12.addConstraint(Sketcher.Constraint("Horizontal", 1))
sketch12.addConstraint(Sketcher.Constraint("Vertical", 2))
sketch12.addConstraint(Sketcher.Constraint("Horizontal", 3))
sketch12.addConstraint(Sketcher.Constraint("DistanceX", 1, 1, 1, 2, 43.5))
sketch12.addConstraint(Sketcher.Constraint("DistanceY", 0, 2, 0, 1, 46.2))
sketch12.addConstraint(Sketcher.Constraint("DistanceY", 0, 2, -1, 1, 8.1))
sketch12.addConstraint(Sketcher.Constraint("DistanceX", 0, 2, -1, 1, 544.563683))
pad9 = body.newObject("PartDesign::Pad", "Pad008")
pad9.Profile = sketch12
pad9.Length = 4.593252
pad9.Reversed = True
body2 = doc.addObject("PartDesign::Body", "Body001")

# Sketch on YZ plane
sketch13 = body2.newObject("Sketcher::SketchObject", "Sketch012")
sketch13.AttachmentSupport = (doc.getObject("YZ_Plane001"), [""])
sketch13.MapMode = "FlatFace"
sketch13.AttachmentOffset = App.Placement(App.Vector(0, 0, -492.563683), App.Rotation())
add_polygon(sketch13, [(171, 30), (133, 30), (133, 0), (171, 0)])  # lines 0-3
sketch13.addConstraint(Sketcher.Constraint("Horizontal", 0))
sketch13.addConstraint(Sketcher.Constraint("Vertical", 1))
sketch13.addConstraint(Sketcher.Constraint("Horizontal", 2))
sketch13.addConstraint(Sketcher.Constraint("Vertical", 3))
sketch13.addConstraint(Sketcher.Constraint("PointOnObject", 1, 2, -1))
sketch13.addConstraint(Sketcher.Constraint("DistanceY", 1, 2, 1, 1, 30.0))
sketch13.addConstraint(Sketcher.Constraint("DistanceX", 0, 2, 0, 1, 37.943252))
sketch13.addConstraint(Sketcher.Constraint("DistanceX", -1, 1, 0, 2, 133.170691))
pad10 = body2.newObject("PartDesign::Pad", "Pad009")
pad10.Profile = sketch13
pad10.Length = 5

# Sketch on YZ plane
sketch14 = body2.newObject("Sketcher::SketchObject", "Sketch013")
sketch14.AttachmentSupport = (doc.getObject("YZ_Plane001"), [""])
sketch14.MapMode = "FlatFace"
sketch14.AttachmentOffset = App.Placement(App.Vector(0, 0, -487.563683), App.Rotation())
add_polygon(sketch14, [(174, 30), (133, 30), (133, 0), (174, 0)])  # lines 0-3
sketch14.addConstraint(Sketcher.Constraint("Horizontal", 0))
sketch14.addConstraint(Sketcher.Constraint("Vertical", 1))
sketch14.addConstraint(Sketcher.Constraint("Horizontal", 2))
sketch14.addConstraint(Sketcher.Constraint("Vertical", 3))
sketch14.addConstraint(Sketcher.Constraint("PointOnObject", 1, 2, -1))
sketch14.addConstraint(Sketcher.Constraint("DistanceY", 1, 2, 1, 1, 30.0))
sketch14.addConstraint(Sketcher.Constraint("DistanceX", 0, 2, 0, 1, 40.443252))
sketch14.addConstraint(Sketcher.Constraint("DistanceX", -1, 1, 0, 2, 133.170691))
pad11 = body2.newObject("PartDesign::Pad", "Pad010")
pad11.Profile = sketch14
pad11.Length = 1.5

# Sketch on YZ plane
sketch15 = body2.newObject("Sketcher::SketchObject", "Sketch014")
sketch15.AttachmentSupport = (doc.getObject("YZ_Plane001"), [""])
sketch15.MapMode = "FlatFace"
sketch15.AttachmentOffset = App.Placement(App.Vector(0, 0, -486.063683), App.Rotation())
add_polygon(sketch15, [(173.6, 30), (171.1, 30), (171.1, 0), (173.6, 0)])  # lines 0-3
sketch15.addConstraint(Sketcher.Constraint("Horizontal", 0))
sketch15.addConstraint(Sketcher.Constraint("Vertical", 1))
sketch15.addConstraint(Sketcher.Constraint("Horizontal", 2))
sketch15.addConstraint(Sketcher.Constraint("Vertical", 3))
sketch15.addConstraint(Sketcher.Constraint("PointOnObject", 1, 2, -1))
sketch15.addConstraint(Sketcher.Constraint("DistanceY", 1, 2, 1, 1, 30.0))
sketch15.addConstraint(Sketcher.Constraint("DistanceX", 0, 2, 0, 1, 2.5))
sketch15.addConstraint(Sketcher.Constraint("DistanceX", -1, 1, 0, 2, 171.113943))
pad12 = body2.newObject("PartDesign::Pad", "Pad011")
pad12.Profile = sketch15
pad12.Length = 5

# Sketch on YZ plane
sketch16 = body2.newObject("Sketcher::SketchObject", "Sketch015")
sketch16.AttachmentSupport = (doc.getObject("YZ_Plane001"), [""])
sketch16.MapMode = "FlatFace"
sketch16.AttachmentOffset = App.Placement(App.Vector(0, 0, -486.063683), App.Rotation())
sketch16.addGeometry(Part.Circle(App.Vector(153.4, 15, 0), App.Vector(0, 0, 1), 2), False)
sketch16.addConstraint(Sketcher.Constraint("Diameter", 0, 4.1))
sketch16.addConstraint(Sketcher.Constraint("DistanceY", -1, 1, 0, 3, 15.0))
sketch16.addConstraint(Sketcher.Constraint("DistanceX", -1, 1, 0, 3, 153.392317))
pad13 = body2.newObject("PartDesign::Pad", "Pad012")
pad13.Profile = sketch16
pad13.Length = 9
pad13.Reversed = True

doc.recompute()
